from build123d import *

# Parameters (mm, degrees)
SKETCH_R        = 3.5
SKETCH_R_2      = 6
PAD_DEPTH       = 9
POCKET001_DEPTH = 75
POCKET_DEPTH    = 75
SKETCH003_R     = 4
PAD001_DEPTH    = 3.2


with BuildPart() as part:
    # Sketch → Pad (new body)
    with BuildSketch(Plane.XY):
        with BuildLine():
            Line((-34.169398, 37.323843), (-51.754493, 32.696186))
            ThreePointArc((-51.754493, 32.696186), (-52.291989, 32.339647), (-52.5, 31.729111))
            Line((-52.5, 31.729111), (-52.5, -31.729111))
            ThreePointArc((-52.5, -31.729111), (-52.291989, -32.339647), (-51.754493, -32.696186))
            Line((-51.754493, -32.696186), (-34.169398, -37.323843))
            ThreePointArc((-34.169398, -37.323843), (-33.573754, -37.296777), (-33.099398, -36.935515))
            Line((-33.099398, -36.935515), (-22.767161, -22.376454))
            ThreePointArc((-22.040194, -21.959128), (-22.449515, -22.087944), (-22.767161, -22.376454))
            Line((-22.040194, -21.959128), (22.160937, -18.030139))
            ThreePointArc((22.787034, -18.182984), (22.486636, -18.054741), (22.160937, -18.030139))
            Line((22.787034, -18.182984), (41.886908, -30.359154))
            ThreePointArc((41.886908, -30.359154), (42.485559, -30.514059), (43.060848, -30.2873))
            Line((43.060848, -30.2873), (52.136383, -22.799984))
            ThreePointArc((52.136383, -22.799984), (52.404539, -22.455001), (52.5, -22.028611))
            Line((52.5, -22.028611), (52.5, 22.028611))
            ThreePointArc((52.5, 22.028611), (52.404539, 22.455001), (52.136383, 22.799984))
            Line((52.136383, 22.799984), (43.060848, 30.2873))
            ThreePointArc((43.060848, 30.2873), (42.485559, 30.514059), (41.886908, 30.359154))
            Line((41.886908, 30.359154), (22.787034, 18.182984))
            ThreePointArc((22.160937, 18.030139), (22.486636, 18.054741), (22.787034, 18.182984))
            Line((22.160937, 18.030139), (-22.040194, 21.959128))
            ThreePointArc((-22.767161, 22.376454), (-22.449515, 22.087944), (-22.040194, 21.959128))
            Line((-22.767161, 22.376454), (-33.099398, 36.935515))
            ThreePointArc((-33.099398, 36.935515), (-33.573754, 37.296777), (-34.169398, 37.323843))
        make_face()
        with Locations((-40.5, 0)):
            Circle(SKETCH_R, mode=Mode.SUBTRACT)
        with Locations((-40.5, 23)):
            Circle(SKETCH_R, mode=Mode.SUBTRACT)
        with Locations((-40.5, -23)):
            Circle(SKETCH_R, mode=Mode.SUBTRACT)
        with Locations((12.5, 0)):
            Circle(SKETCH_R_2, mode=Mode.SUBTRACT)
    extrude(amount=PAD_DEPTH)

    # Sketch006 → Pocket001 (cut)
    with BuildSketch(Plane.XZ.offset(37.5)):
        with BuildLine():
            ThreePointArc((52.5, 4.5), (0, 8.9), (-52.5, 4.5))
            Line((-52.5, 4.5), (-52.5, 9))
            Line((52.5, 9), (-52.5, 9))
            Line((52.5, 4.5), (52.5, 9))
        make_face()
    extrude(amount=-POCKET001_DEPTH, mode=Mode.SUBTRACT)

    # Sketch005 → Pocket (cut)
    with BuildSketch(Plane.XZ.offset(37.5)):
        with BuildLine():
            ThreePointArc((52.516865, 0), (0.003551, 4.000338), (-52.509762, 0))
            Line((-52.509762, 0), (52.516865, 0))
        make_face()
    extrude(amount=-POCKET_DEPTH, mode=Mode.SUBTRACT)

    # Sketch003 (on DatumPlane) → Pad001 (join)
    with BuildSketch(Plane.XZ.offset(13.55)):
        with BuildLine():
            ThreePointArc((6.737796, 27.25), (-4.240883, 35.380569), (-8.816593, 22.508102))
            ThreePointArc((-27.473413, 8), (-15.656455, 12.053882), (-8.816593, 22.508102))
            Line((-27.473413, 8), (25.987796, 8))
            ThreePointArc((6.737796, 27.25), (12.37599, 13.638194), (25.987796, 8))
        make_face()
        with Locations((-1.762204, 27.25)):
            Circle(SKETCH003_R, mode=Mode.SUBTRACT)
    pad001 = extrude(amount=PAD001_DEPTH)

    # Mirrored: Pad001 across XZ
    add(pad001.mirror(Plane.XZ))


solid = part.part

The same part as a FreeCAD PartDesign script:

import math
import FreeCAD as App
import Part
import Sketcher
from FreeCAD import Vector

doc = App.newDocument("Part")
params = doc.addObject("Spreadsheet::Sheet", "Params")
for row, (alias, value) in enumerate([
    ("sketch1_diameter", "7 mm"),
    ("sketch1_diameter2", "12 mm"),
    ("sketch1_radius", "0.999999 mm"),
    ("pad1_length", "9 mm"),
    ("sketch2_width", "105 mm"),
    ("sketch2_height", "4.5 mm"),
    ("pocket1_length", "75 mm"),
    ("pocket2_length", "75 mm"),
    ("sketch4_diameter", "8 mm"),
    ("sketch4_radius", "8.5 mm"),
    ("sketch4_radius2", "19.250002 mm"),
    ("pad2_length", "3.2 mm"),
], start=1):
    params.set(f"A{row}", alias)
    params.set(f"B{row}", "=" + value)
    params.setAlias(f"B{row}", alias)

body = doc.addObject("PartDesign::Body", "Body")

sketch1 = body.newObject("Sketcher::SketchObject", "Sketch")
sketch1.AttachmentSupport = (doc.getObject("XY_Plane"), [""])
sketch1.MapMode = "FlatFace"
sketch1.addGeometry(Part.LineSegment(Vector(-34.169398, 37.323843, 0), Vector(-51.754493, 32.696186, 0)), False)
sketch1.addGeometry(Part.ArcOfCircle(Part.Circle(Vector(-51.500001, 31.729112, 0), Vector(0, 0, 1), 0.999999), math.radians(104.743519), math.radians(180.000048)), False)
sketch1.addGeometry(Part.LineSegment(Vector(-52.5, 31.729111, 0), Vector(-52.5, -31.729111, 0)), False)
sketch1.addGeometry(Part.ArcOfCircle(Part.Circle(Vector(-51.500001, -31.729112, 0), Vector(0, 0, 1), 0.999999), math.radians(179.999952), math.radians(255.256481)), False)
sketch1.addGeometry(Part.LineSegment(Vector(-51.754493, -32.696186, 0), Vector(-34.169398, -37.323843, 0)), False)
sketch1.addGeometry(Part.ArcOfCircle(Part.Circle(Vector(-33.914905, -36.35677, 0), Vector(0, 0, 1), 0.999999), math.radians(-104.743581), math.radians(-35.362384)), False)
sketch1.addGeometry(Part.LineSegment(Vector(-33.099398, -36.935515, 0), Vector(-22.767161, -22.376454, 0)), False)
sketch1.addGeometry(Part.ArcOfCircle(Part.Circle(Vector(-21.951654, -22.955201, 0), Vector(0, 0, 1), 1), math.radians(95.079646), math.radians(144.637568)), False)
sketch1.addGeometry(Part.LineSegment(Vector(-22.040194, -21.959128, 0), Vector(22.160937, -18.030139, 0)), False)
sketch1.addGeometry(Part.ArcOfCircle(Part.Circle(Vector(22.249476, -19.026217, 0), Vector(0, 0, 1), 1.000006), math.radians(57.48264), math.radians(95.079528)), False)
sketch1.addGeometry(Part.LineSegment(Vector(22.787034, -18.182984, 0), Vector(41.886908, -30.359154, 0)), False)
sketch1.addGeometry(Part.ArcOfCircle(Part.Circle(Vector(42.424465, -29.515928, 0), Vector(0, 0, 1), 0.999999), math.radians(-122.517551), math.radians(-50.477319)), False)
sketch1.addGeometry(Part.LineSegment(Vector(43.060848, -30.2873, 0), Vector(52.136383, -22.799984, 0)), False)
sketch1.addGeometry(Part.ArcOfCircle(Part.Circle(Vector(51.499997, -22.02861, 0), Vector(0, 0, 1), 1.000003), math.radians(-50.477294), math.radians(-0.000085)), False)
sketch1.addGeometry(Part.LineSegment(Vector(52.5, -22.028611, 0), Vector(52.5, 22.028611, 0)), False)
sketch1.addGeometry(Part.ArcOfCircle(Part.Circle(Vector(51.499997, 22.02861, 0), Vector(0, 0, 1), 1.000003), math.radians(0.000085), math.radians(50.477294)), False)
sketch1.addGeometry(Part.LineSegment(Vector(52.136383, 22.799984, 0), Vector(43.060848, 30.2873, 0)), False)
sketch1.addGeometry(Part.ArcOfCircle(Part.Circle(Vector(42.424465, 29.515928, 0), Vector(0, 0, 1), 0.999999), math.radians(50.477319), math.radians(122.517551)), False)
sketch1.addGeometry(Part.LineSegment(Vector(41.886908, 30.359154, 0), Vector(22.787034, 18.182984, 0)), False)
sketch1.addGeometry(Part.ArcOfCircle(Part.Circle(Vector(22.249476, 19.026217, 0), Vector(0, 0, 1), 1.000006), math.radians(-95.079528), math.radians(-57.48264)), False)
sketch1.addGeometry(Part.LineSegment(Vector(22.160937, 18.030139, 0), Vector(-22.040194, 21.959128, 0)), False)
sketch1.addGeometry(Part.ArcOfCircle(Part.Circle(Vector(-21.951654, 22.955201, 0), Vector(0, 0, 1), 1), math.radians(-144.637568), math.radians(-95.079646)), False)
sketch1.addGeometry(Part.LineSegment(Vector(-22.767161, 22.376454, 0), Vector(-33.099398, 36.935515, 0)), False)
sketch1.addGeometry(Part.ArcOfCircle(Part.Circle(Vector(-33.914905, 36.35677, 0), Vector(0, 0, 1), 0.999999), math.radians(35.362384), math.radians(104.743581)), False)
sketch1.addGeometry(Part.Circle(Vector(-40.5, -23, 0), Vector(0, 0, 1), 3.5), False)
sketch1.addGeometry(Part.Circle(Vector(-40.5, 0, 0), Vector(0, 0, 1), 3.5), False)
sketch1.addGeometry(Part.Circle(Vector(-40.5, 23, 0), Vector(0, 0, 1), 3.5), False)
sketch1.addGeometry(Part.Circle(Vector(12.5, 0, 0), Vector(0, 0, 1), 6), False)
sketch1.addConstraint(Sketcher.Constraint("Tangent", 0, 2, 1, 1))
sketch1.addConstraint(Sketcher.Constraint("Tangent", 1, 2, 2, 1))
sketch1.addConstraint(Sketcher.Constraint("Tangent", 2, 2, 3, 1))
sketch1.addConstraint(Sketcher.Constraint("Tangent", 3, 2, 4, 1))
sketch1.addConstraint(Sketcher.Constraint("Tangent", 4, 2, 5, 1))
sketch1.addConstraint(Sketcher.Constraint("Tangent", 5, 2, 6, 1))
sketch1.addConstraint(Sketcher.Constraint("Tangent", 6, 2, 7, 2))
sketch1.addConstraint(Sketcher.Constraint("Tangent", 7, 1, 8, 1))
sketch1.addConstraint(Sketcher.Constraint("Tangent", 8, 2, 9, 2))
sketch1.addConstraint(Sketcher.Constraint("Coincident", 9, 1, 10, 1))
sketch1.addConstraint(Sketcher.Constraint("Tangent", 10, 2, 11, 1))
sketch1.addConstraint(Sketcher.Constraint("Tangent", 11, 2, 12, 1))
sketch1.addConstraint(Sketcher.Constraint("Tangent", 12, 2, 13, 1))
sketch1.addConstraint(Sketcher.Constraint("Tangent", 13, 2, 14, 1))
sketch1.addConstraint(Sketcher.Constraint("Tangent", 14, 2, 15, 1))
sketch1.addConstraint(Sketcher.Constraint("Tangent", 15, 2, 16, 1))
sketch1.addConstraint(Sketcher.Constraint("Tangent", 16, 2, 17, 1))
sketch1.addConstraint(Sketcher.Constraint("Tangent", 17, 2, 18, 1))
sketch1.addConstraint(Sketcher.Constraint("Coincident", 18, 2, 19, 2))
sketch1.addConstraint(Sketcher.Constraint("Tangent", 19, 1, 20, 1))
sketch1.addConstraint(Sketcher.Constraint("Tangent", 20, 2, 21, 2))
sketch1.addConstraint(Sketcher.Constraint("Tangent", 21, 1, 22, 1))
sketch1.addConstraint(Sketcher.Constraint("Tangent", 22, 2, 23, 1))
sketch1.addConstraint(Sketcher.Constraint("Tangent", 23, 2, 0, 1))
sketch1.addConstraint(Sketcher.Constraint("Vertical", 2))
sketch1.addConstraint(Sketcher.Constraint("Vertical", 14))
sketch1.addConstraint(Sketcher.Constraint("Equal", 1, 3))
sketch1.addConstraint(Sketcher.Constraint("Equal", 3, 5))
sketch1.addConstraint(Sketcher.Constraint("Equal", 5, 7))
sketch1.addConstraint(Sketcher.Constraint("Equal", 7, 11))
sketch1.addConstraint(Sketcher.Constraint("Equal", 13, 15))
sketch1.addConstraint(Sketcher.Constraint("Equal", 11, 17))
sketch1.addConstraint(Sketcher.Constraint("Equal", 9, 19))
sketch1.addConstraint(Sketcher.Constraint("Equal", 17, 21))
sketch1.addConstraint(Sketcher.Constraint("Equal", 21, 23))
sketch1.addConstraint(Sketcher.Constraint("Equal", 24, 25))
sketch1.addConstraint(Sketcher.Constraint("Equal", 25, 26))
sketch1.addConstraint(Sketcher.Constraint("Symmetric", 11, 3, 17, 3, -1))
sketch1.addConstraint(Sketcher.Constraint("Symmetric", 9, 3, 19, 3, -1))
sketch1.addConstraint(Sketcher.Constraint("Symmetric", 7, 3, 21, 3, -1))
sketch1.addConstraint(Sketcher.Constraint("Symmetric", 5, 3, 23, 3, -1))
sketch1.addConstraint(Sketcher.Constraint("Symmetric", 24, 3, 26, 3, -1))
sketch1.addConstraint(Sketcher.Constraint("PointOnObject", 25, 3, -1))
sketch1.addConstraint(Sketcher.Constraint("PointOnObject", 27, 3, -1))
sketch1.addConstraint(Sketcher.Constraint("Vertical", 24, 3, 25, 3))
sketch1.addConstraint(Sketcher.Constraint("Vertical", 0, 2, 3, 2))
sketch1.addConstraint(Sketcher.Constraint("Vertical", 12, 2, 15, 2))
sketch1.addConstraint(Sketcher.Constraint("Vertical", 9, 1, 18, 2))
sketch1.addConstraint(Sketcher.Constraint("Diameter", 24, 7.0))
sketch1.addConstraint(Sketcher.Constraint("Diameter", 27, 12.0))
sketch1.addConstraint(Sketcher.Constraint("Radius", 1, 0.999999))
sketch1.addConstraint(Sketcher.Constraint("DistanceY", 24, 3, -1, 1, 23.0))
sketch1.addConstraint(Sketcher.Constraint("DistanceX", 3, 3, 24, 3, 11.000001))
sketch1.addConstraint(Sketcher.Constraint("DistanceX", 1, 3, -1, 1, 51.500001))
sketch1.addConstraint(Sketcher.Constraint("DistanceX", -1, 1, 27, 3, 12.5))
sketch1.addConstraint(Sketcher.Constraint("DistanceX", -1, 1, 13, 2, 52.5))
sketch1.addConstraint(Sketcher.Constraint("DistanceX", 4, 2, 5, 2, 1.07))
sketch1.addConstraint(Sketcher.Constraint("Radius", 9, 1.000006))
sketch1.addConstraint(Sketcher.Constraint("Radius", 13, 1.000003))
sketch1.addConstraint(Sketcher.Constraint("DistanceY", 12, 2, 9, 1, 4.617))
sketch1.addConstraint(Sketcher.Constraint("DistanceY", 7, 3, -1, 1, 22.955201))
sketch1.addConstraint(Sketcher.Constraint("DistanceY", 11, 2, -1, 1, 30.2873))
sketch1.addConstraint(Sketcher.Constraint("DistanceX", 24, 3, 4, 2, 6.330602))
sketch1.addConstraint(Sketcher.Constraint("Distance", 6, 17.852769))
sketch1.addConstraint(Sketcher.Constraint("Distance", 8, 44.375409))
sketch1.addConstraint(Sketcher.Constraint("DistanceY", 2, 2, 2, 1, 63.458222))
sketch1.addConstraint(Sketcher.Constraint("DistanceY", 14, 1, 14, 2, 44.057222))
sketch1.addConstraint(Sketcher.Constraint("DistanceY", 11, 3, -1, 1, 29.515928))
sketch1.addConstraint(Sketcher.Constraint("DistanceY", 8, 2, -1, 1, 18.030139))
sketch1.setExpression("Constraints[48]", "Params.sketch1_diameter")
sketch1.setExpression("Constraints[49]", "Params.sketch1_diameter2")
sketch1.setExpression("Constraints[50]", "Params.sketch1_radius")
pad1 = body.newObject("PartDesign::Pad", "Pad")
pad1.Profile = sketch1
pad1.setExpression("Length", "Params.pad1_length")

sketch2 = body.newObject("Sketcher::SketchObject", "Sketch001")
sketch2.AttachmentSupport = (doc.getObject("XZ_Plane"), [""])
sketch2.MapMode = "FlatFace"
sketch2.AttachmentOffset = App.Placement(Vector(0, 0, 37.5), App.Rotation())
sketch2.addGeometry(Part.ArcOfCircle(Part.Circle(Vector(0, -306.510227, 0), Vector(0, 0, 1), 315.410227), math.radians(80.418528), math.radians(99.581472)), False)
sketch2.addGeometry(Part.LineSegment(Vector(52.5, 4.5, 0), Vector(52.5, 9, 0)), False)
sketch2.addGeometry(Part.LineSegment(Vector(52.5, 9, 0), Vector(-52.5, 9, 0)), False)
sketch2.addGeometry(Part.LineSegment(Vector(-52.5, 9, 0), Vector(-52.5, 4.5, 0)), False)
sketch2.addConstraint(Sketcher.Constraint("Coincident", 0, 1, 1, 1))
sketch2.addConstraint(Sketcher.Constraint("Coincident", 1, 2, 2, 1))
sketch2.addConstraint(Sketcher.Constraint("Coincident", 2, 2, 3, 1))
sketch2.addConstraint(Sketcher.Constraint("Coincident", 3, 2, 0, 2))
sketch2.addConstraint(Sketcher.Constraint("Vertical", 1))
sketch2.addConstraint(Sketcher.Constraint("Horizontal", 2))
sketch2.addConstraint(Sketcher.Constraint("Vertical", 3))
sketch2.addConstraint(Sketcher.Constraint("Symmetric", 0, 1, 3, 2, -2))
sketch2.addConstraint(Sketcher.Constraint("DistanceX", 2, 2, 2, 1, 105.0))
sketch2.addConstraint(Sketcher.Constraint("DistanceY", 1, 1, 1, 2, 4.5))
sketch2.addConstraint(Sketcher.Constraint("DistanceY", -1, 1, 1, 2, 9.0))
sketch2.addConstraint(Sketcher.Constraint("Radius", 0, 315.410227))
sketch2.setExpression("Constraints[8]", "Params.sketch2_width")
sketch2.setExpression("Constraints[9]", "Params.sketch2_height")
pocket1 = body.newObject("PartDesign::Pocket", "Pocket")
pocket1.Profile = sketch2
pocket1.setExpression("Length", "Params.pocket1_length")

sketch3 = body.newObject("Sketcher::SketchObject", "Sketch002")
sketch3.AttachmentSupport = (doc.getObject("XZ_Plane"), [""])
sketch3.MapMode = "FlatFace"
sketch3.AttachmentOffset = App.Placement(Vector(0, 0, 37.5), App.Rotation())
sketch3.addGeometry(Part.ArcOfCircle(Part.Circle(Vector(0.003551, -342.676718, 0), Vector(0, 0, 1), 346.677056), math.radians(81.287517), math.radians(98.712483)), False)
sketch3.addGeometry(Part.LineSegment(Vector(-52.509762, 0, 0), Vector(52.516865, 0, 0)), False)
sketch3.addConstraint(Sketcher.Constraint("Coincident", 0, 1, 1, 2))
sketch3.addConstraint(Sketcher.Constraint("Coincident", 1, 1, 0, 2))
sketch3.addConstraint(Sketcher.Constraint("Horizontal", 1))
sketch3.addConstraint(Sketcher.Constraint("PointOnObject", 0, 1, -1))
sketch3.addConstraint(Sketcher.Constraint("Radius", 0, 346.677056))
sketch3.addConstraint(Sketcher.Constraint("DistanceX", 1, 1, 1, 2, 105.026627))
sketch3.addConstraint(Sketcher.Constraint("DistanceX", -1, 1, 0, 3, 0.003551))
pocket2 = body.newObject("PartDesign::Pocket", "Pocket001")
pocket2.Profile = sketch3
pocket2.setExpression("Length", "Params.pocket2_length")

sketch4 = body.newObject("Sketcher::SketchObject", "Sketch003")
sketch4.AttachmentSupport = (doc.getObject("XZ_Plane"), [""])
sketch4.MapMode = "FlatFace"
sketch4.AttachmentOffset = App.Placement(Vector(0, 0, 13.55), App.Rotation())
sketch4.addGeometry(Part.ArcOfCircle(Part.Circle(Vector(-1.762204, 27.25, 0), Vector(0, 0, 1), 8.5), math.radians(0), math.radians(213.908646)), False)
sketch4.addGeometry(Part.ArcOfCircle(Part.Circle(Vector(-27.473414, 27.250002, 0), Vector(0, 0, 1), 19.250002), math.radians(-89.999998), math.radians(-14.26059)), False)
sketch4.addGeometry(Part.LineSegment(Vector(-27.473413, 8, 0), Vector(25.987796, 8, 0)), False)
sketch4.addGeometry(Part.ArcOfCircle(Part.Circle(Vector(25.987794, 27.249998, 0), Vector(0, 0, 1), 19.249998), math.radians(179.999995), math.radians(270.000005)), False)
sketch4.addGeometry(Part.Circle(Vector(-1.762204, 27.25, 0), Vector(0, 0, 1), 4), False)
sketch4.addConstraint(Sketcher.Constraint("Coincident", 0, 2, 1, 2))
sketch4.addConstraint(Sketcher.Constraint("Tangent", 1, 1, 2, 1))
sketch4.addConstraint(Sketcher.Constraint("Tangent", 2, 2, 3, 2))
sketch4.addConstraint(Sketcher.Constraint("Tangent", 3, 1, 0, 1))
sketch4.addConstraint(Sketcher.Constraint("Horizontal", 2))
sketch4.addConstraint(Sketcher.Constraint("Coincident", 4, 3, 0, 3))
sketch4.addConstraint(Sketcher.Constraint("Horizontal", 0, 3, 1, 3))
sketch4.addConstraint(Sketcher.Constraint("Horizontal", 0, 3, 3, 3))
sketch4.addConstraint(Sketcher.Constraint("Diameter", 4, 8.0))
sketch4.addConstraint(Sketcher.Constraint("Radius", 0, 8.5))
sketch4.addConstraint(Sketcher.Constraint("Radius", 1, 19.250002))
sketch4.addConstraint(Sketcher.Constraint("DistanceY", -1, 1, 1, 1, 8.0))
sketch4.addConstraint(Sketcher.Constraint("DistanceX", 2, 1, 2, 2, 53.461209))
sketch4.addConstraint(Sketcher.Constraint("DistanceX", 0, 3, -1, 1, 1.762204))
sketch4.setExpression("Constraints[8]", "Params.sketch4_diameter")
sketch4.setExpression("Constraints[9]", "Params.sketch4_radius")
sketch4.setExpression("Constraints[10]", "Params.sketch4_radius2")
pad2 = body.newObject("PartDesign::Pad", "Pad001")
pad2.Profile = sketch4
pad2.setExpression("Length", "Params.pad2_length")
doc.recompute()

mirrored = body.newObject("PartDesign::Mirrored", "Mirrored")
mirrored.Originals = [pad2]
mirrored.MirrorPlane = (doc.getObject("XZ_Plane"), [""])
body.Tip = mirrored

doc.recompute()
